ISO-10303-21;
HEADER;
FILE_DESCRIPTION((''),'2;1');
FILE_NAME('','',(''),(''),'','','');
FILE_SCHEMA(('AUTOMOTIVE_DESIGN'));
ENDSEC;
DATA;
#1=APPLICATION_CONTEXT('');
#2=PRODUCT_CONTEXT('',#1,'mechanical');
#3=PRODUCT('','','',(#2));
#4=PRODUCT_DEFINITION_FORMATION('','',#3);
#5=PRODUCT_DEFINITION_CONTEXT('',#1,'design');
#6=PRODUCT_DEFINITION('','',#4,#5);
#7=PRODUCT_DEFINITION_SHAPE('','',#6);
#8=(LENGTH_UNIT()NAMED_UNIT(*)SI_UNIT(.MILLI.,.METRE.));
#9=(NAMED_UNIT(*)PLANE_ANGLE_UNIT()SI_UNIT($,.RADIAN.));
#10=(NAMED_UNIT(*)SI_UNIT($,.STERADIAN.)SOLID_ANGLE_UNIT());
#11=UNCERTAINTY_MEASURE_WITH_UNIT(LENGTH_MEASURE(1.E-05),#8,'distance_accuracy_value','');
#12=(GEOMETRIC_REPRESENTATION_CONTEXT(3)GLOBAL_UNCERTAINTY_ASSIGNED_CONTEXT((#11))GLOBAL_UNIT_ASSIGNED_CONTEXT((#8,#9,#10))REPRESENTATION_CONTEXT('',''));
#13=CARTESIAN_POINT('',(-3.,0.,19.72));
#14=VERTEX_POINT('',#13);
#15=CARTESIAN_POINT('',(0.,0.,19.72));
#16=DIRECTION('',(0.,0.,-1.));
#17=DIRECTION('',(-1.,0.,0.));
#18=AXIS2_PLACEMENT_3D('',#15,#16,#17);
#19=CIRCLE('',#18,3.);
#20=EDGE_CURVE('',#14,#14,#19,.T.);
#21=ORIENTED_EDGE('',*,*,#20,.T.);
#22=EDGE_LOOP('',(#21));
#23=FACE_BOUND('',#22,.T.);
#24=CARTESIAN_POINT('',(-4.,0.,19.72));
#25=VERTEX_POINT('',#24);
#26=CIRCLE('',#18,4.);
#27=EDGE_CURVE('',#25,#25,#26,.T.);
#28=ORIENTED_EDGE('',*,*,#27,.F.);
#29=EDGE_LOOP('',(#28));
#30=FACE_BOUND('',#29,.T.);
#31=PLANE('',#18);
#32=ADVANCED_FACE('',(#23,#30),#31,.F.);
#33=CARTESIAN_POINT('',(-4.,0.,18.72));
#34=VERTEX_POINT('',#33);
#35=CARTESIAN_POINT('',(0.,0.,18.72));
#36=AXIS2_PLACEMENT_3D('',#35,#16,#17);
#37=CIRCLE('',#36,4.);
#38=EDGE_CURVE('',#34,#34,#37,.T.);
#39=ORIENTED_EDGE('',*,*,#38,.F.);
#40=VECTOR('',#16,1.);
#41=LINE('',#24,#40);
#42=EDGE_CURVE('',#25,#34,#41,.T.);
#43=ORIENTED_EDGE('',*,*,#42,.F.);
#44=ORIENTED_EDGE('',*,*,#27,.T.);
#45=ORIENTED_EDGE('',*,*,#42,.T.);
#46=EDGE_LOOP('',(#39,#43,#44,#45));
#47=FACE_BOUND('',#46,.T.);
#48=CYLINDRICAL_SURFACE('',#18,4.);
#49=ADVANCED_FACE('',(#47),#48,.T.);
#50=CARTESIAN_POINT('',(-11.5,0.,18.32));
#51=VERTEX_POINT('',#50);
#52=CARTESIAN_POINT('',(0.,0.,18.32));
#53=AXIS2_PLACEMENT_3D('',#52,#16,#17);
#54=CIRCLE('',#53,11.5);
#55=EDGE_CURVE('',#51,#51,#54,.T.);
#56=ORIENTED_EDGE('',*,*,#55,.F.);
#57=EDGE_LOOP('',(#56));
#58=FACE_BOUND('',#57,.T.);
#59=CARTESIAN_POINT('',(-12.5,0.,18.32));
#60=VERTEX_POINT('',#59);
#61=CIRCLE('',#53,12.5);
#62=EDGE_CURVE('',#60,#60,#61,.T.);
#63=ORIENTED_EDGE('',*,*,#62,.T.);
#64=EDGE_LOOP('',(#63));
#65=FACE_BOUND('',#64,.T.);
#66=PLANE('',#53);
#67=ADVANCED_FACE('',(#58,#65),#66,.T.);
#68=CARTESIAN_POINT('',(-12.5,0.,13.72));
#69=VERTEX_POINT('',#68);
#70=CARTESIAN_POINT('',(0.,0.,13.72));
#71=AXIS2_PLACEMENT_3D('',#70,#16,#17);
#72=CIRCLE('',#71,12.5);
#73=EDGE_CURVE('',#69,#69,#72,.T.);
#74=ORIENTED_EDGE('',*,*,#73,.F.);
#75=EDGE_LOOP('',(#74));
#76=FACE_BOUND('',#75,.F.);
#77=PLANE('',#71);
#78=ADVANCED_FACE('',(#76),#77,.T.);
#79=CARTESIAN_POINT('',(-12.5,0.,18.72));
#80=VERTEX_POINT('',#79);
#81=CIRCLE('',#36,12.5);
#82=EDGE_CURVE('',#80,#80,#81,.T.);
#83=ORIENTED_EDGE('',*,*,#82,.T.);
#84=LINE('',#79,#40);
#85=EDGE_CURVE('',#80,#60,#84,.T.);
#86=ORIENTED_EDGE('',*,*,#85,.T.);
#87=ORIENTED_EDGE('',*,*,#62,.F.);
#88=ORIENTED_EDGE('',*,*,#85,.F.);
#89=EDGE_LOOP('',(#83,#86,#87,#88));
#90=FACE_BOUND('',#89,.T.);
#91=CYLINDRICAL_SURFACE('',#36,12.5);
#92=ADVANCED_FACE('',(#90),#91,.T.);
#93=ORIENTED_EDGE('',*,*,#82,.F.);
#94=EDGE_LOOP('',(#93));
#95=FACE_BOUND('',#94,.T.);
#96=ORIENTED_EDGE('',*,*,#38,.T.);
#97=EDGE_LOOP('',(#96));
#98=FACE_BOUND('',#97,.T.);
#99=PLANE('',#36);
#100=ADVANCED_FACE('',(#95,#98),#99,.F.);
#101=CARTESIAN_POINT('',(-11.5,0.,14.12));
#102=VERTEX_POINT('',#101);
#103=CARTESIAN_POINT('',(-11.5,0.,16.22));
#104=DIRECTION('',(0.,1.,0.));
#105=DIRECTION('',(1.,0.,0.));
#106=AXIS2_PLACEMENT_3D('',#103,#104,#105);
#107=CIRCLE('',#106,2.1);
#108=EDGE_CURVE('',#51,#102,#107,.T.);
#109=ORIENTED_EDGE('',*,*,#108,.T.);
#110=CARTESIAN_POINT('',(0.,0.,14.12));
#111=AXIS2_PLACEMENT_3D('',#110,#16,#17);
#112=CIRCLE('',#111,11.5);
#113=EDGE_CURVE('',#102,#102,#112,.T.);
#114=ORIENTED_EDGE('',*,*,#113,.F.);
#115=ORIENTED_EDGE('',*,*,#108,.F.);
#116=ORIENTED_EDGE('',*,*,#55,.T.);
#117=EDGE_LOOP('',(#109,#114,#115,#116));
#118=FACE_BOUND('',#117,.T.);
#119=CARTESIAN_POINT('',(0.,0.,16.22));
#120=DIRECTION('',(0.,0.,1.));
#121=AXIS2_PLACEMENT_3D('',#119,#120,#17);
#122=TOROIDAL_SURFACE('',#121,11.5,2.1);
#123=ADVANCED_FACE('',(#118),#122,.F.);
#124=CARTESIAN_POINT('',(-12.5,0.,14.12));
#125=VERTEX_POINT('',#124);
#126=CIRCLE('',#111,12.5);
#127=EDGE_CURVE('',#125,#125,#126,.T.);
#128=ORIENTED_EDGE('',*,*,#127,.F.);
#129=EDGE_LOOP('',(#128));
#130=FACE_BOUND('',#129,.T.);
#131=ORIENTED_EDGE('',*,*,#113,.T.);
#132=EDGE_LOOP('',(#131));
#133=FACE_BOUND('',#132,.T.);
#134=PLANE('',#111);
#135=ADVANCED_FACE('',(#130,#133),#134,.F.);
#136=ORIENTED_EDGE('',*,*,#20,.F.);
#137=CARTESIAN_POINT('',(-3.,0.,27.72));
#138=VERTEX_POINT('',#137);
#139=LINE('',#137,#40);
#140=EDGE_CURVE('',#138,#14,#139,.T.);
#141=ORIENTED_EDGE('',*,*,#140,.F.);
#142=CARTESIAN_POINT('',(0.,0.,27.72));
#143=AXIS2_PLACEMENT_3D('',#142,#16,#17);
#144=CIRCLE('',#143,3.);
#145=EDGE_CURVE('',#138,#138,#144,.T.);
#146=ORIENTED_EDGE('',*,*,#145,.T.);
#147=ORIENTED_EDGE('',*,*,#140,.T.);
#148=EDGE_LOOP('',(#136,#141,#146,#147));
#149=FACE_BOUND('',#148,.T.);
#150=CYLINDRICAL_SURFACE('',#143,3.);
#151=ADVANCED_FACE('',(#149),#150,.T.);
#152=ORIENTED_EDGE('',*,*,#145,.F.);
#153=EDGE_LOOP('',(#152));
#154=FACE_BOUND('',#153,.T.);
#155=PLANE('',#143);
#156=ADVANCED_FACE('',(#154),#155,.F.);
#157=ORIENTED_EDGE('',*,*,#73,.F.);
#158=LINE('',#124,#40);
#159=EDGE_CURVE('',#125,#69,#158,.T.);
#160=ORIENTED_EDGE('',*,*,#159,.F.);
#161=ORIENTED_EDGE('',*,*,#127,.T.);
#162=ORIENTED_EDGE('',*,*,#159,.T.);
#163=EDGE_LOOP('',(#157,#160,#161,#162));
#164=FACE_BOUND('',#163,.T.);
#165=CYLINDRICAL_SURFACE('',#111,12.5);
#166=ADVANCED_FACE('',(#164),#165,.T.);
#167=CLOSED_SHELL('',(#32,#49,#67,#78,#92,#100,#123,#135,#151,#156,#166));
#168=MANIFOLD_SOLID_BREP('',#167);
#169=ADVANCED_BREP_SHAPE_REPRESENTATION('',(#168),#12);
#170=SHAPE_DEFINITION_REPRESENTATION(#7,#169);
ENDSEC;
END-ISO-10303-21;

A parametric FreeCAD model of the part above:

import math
import FreeCAD as App
import Part
import Sketcher
from FreeCAD import Vector
Q = App.Units.Quantity

doc = App.newDocument("Part")
params = doc.addObject("Spreadsheet::Sheet", "Params")
for row, (alias, value) in enumerate([
    ("sketch1_radius", "2.1 mm"),
    ("sketch1_width", "1 mm"),
    ("sketch1_height", "5 mm"),
    ("sketch1_width2", "12.5 mm"),
    ("revolution_angle", "360 deg"),
    ("sketch2_width", "4 mm"),
    ("sketch2_width2", "3 mm"),
    ("sketch2_height", "9 mm"),
    ("revolution2_angle", "360 deg"),
], start=1):
    params.set(f"A{row}", alias)
    params.set(f"B{row}", "=" + value)
    params.setAlias(f"B{row}", alias)

body = doc.addObject("PartDesign::Body", "Body")

# Sketch on XZ plane
sketch1 = body.newObject("Sketcher::SketchObject", "Sketch")
sketch1.AttachmentSupport = (doc.getObject("XZ_Plane"), [""])
sketch1.MapMode = "FlatFace"
sketch1.addGeometry([
    Part.LineSegment(Vector(0, 13.72, 0), Vector(0, 18.72, 0)),  # 0
    Part.LineSegment(Vector(0, 18.72, 0), Vector(-12.5, 18.72, 0)),  # 1
    Part.LineSegment(Vector(-12.5, 18.72, 0), Vector(-12.5, 18.32, 0)),  # 2
    Part.LineSegment(Vector(-12.5, 18.32, 0), Vector(-11.5, 18.32, 0)),  # 3
    Part.ArcOfCircle(Part.Circle(Vector(-11.5, 16.22, 0), Vector(0, 0, 1), 2.1), math.radians(-90), math.radians(90)),  # 4
    Part.LineSegment(Vector(-11.5, 14.12, 0), Vector(-12.5, 14.12, 0)),  # 5
    Part.LineSegment(Vector(-12.5, 14.12, 0), Vector(-12.5, 13.72, 0)),  # 6
    Part.LineSegment(Vector(-12.5, 13.72, 0), Vector(0, 13.72, 0)),  # 7
], False)
sketch1.addConstraint([
    Sketcher.Constraint("Coincident", 0, 2, 1, 1),
    Sketcher.Constraint("Coincident", 1, 2, 2, 1),
    Sketcher.Constraint("Coincident", 2, 2, 3, 1),
    Sketcher.Constraint("Tangent", 3, 2, 4, 2),
    Sketcher.Constraint("Tangent", 4, 1, 5, 1),
    Sketcher.Constraint("Coincident", 5, 2, 6, 1),
    Sketcher.Constraint("Coincident", 6, 2, 7, 1),
    Sketcher.Constraint("Coincident", 7, 2, 0, 1),
    Sketcher.Constraint("Vertical", 0),
    Sketcher.Constraint("Horizontal", 1),
    Sketcher.Constraint("Vertical", 2),
    Sketcher.Constraint("Horizontal", 3),
    Sketcher.Constraint("Horizontal", 5),
    Sketcher.Constraint("Vertical", 6),
    Sketcher.Constraint("Horizontal", 7),
    Sketcher.Constraint("PointOnObject", 0, 2, -2),
    Sketcher.Constraint("Vertical", 2, 2, 5, 2),
    Sketcher.Constraint("Equal", 2, 6),
    Sketcher.Constraint("Radius", 4, Q("2.1 mm")),
    Sketcher.Constraint("DistanceX", 3, 1, 3, 2, Q("1 mm")),
    Sketcher.Constraint("DistanceY", 0, 1, 0, 2, Q("5 mm")),
    Sketcher.Constraint("DistanceX", 1, 2, 1, 1, Q("12.5 mm")),
    Sketcher.Constraint("DistanceY", -1, 1, 4, 3, Q("16.22 mm")),
])
sketch1.setExpression("Constraints[18]", "Params.sketch1_radius")
sketch1.setExpression("Constraints[19]", "Params.sketch1_width")
sketch1.setExpression("Constraints[20]", "Params.sketch1_height")
sketch1.setExpression("Constraints[21]", "Params.sketch1_width2")
revolution = body.newObject("PartDesign::Revolution", "Revolution")
revolution.Profile = sketch1
revolution.ReferenceAxis = (sketch1, ["V_Axis"])
revolution.setExpression("Angle", "Params.revolution_angle")

# Sketch on XZ plane
sketch2 = body.newObject("Sketcher::SketchObject", "Sketch001")
sketch2.AttachmentSupport = (doc.getObject("XZ_Plane"), [""])
sketch2.MapMode = "FlatFace"
sketch2.addGeometry([
    Part.LineSegment(Vector(-4, 18.7, 0), Vector(0, 18.7, 0)),  # 0
    Part.LineSegment(Vector(0, 18.7, 0), Vector(0, 27.7, 0)),  # 1
    Part.LineSegment(Vector(0, 27.7, 0), Vector(-3, 27.7, 0)),  # 2
    Part.LineSegment(Vector(-3, 27.7, 0), Vector(-3, 19.7, 0)),  # 3
    Part.LineSegment(Vector(-3, 19.7, 0), Vector(-4, 19.7, 0)),  # 4
    Part.LineSegment(Vector(-4, 19.7, 0), Vector(-4, 18.7, 0)),  # 5
], False)
sketch2.addConstraint([
    Sketcher.Constraint("Coincident", 0, 2, 1, 1),
    Sketcher.Constraint("Coincident", 1, 2, 2, 1),
    Sketcher.Constraint("Coincident", 2, 2, 3, 1),
    Sketcher.Constraint("Coincident", 3, 2, 4, 1),
    Sketcher.Constraint("Coincident", 4, 2, 5, 1),
    Sketcher.Constraint("Coincident", 5, 2, 0, 1),
    Sketcher.Constraint("Horizontal", 0),
    Sketcher.Constraint("Vertical", 1),
    Sketcher.Constraint("Horizontal", 2),
    Sketcher.Constraint("Vertical", 3),
    Sketcher.Constraint("Horizontal", 4),
    Sketcher.Constraint("Vertical", 5),
    Sketcher.Constraint("PointOnObject", 0, 2, -2),
    Sketcher.Constraint("Equal", 4, 5),
    Sketcher.Constraint("DistanceX", 0, 1, 0, 2, Q("4 mm")),
    Sketcher.Constraint("DistanceX", 2, 2, 2, 1, Q("3 mm")),
    Sketcher.Constraint("DistanceY", 1, 1, 1, 2, Q("9 mm")),
    Sketcher.Constraint("DistanceY", -1, 1, 0, 2, Q("18.72 mm")),
])
sketch2.setExpression("Constraints[14]", "Params.sketch2_width")
sketch2.setExpression("Constraints[15]", "Params.sketch2_width2")
sketch2.setExpression("Constraints[16]", "Params.sketch2_height")
revolution2 = body.newObject("PartDesign::Revolution", "Revolution001")
revolution2.Profile = sketch2
revolution2.ReferenceAxis = (sketch2, ["V_Axis"])
revolution2.setExpression("Angle", "Params.revolution2_angle")

doc.recompute()
